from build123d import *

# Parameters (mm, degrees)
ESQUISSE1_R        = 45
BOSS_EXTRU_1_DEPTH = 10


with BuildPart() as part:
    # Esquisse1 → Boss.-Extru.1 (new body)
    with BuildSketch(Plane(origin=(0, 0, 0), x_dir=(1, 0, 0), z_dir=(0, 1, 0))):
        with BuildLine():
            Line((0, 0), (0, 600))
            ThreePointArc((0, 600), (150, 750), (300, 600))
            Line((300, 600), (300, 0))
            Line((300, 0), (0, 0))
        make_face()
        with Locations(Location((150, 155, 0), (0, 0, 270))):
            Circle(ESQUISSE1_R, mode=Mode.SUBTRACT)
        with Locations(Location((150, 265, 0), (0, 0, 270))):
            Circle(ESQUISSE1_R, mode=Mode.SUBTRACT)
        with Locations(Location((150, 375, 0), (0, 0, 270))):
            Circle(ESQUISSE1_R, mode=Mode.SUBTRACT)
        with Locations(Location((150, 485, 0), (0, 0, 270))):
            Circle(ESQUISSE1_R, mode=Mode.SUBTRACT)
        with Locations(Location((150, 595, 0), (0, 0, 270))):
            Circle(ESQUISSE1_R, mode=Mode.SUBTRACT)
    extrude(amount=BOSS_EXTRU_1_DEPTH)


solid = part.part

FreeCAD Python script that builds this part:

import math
import FreeCAD as App
import Part
import Sketcher
from FreeCAD import Vector

doc = App.newDocument("Part")
body = doc.addObject("PartDesign::Body", "Body")

# Sketch on XZ plane
sketch1 = doc.addObject("Sketcher::SketchObject", "Sketch")
body.addObject(sketch1)
sketch1.AttachmentSupport = (doc.XZ_Plane, [""])
sketch1.MapMode = "FlatFace"
sketch1.addGeometry([
    Part.LineSegment(Vector(0, -600, 0), Vector(0, 0, 0)),  # 0
    Part.LineSegment(Vector(0, 0, 0), Vector(300, 0, 0)),  # 1
    Part.LineSegment(Vector(300, 0, 0), Vector(300, -600, 0)),  # 2
    Part.ArcOfCircle(Part.Circle(Vector(150, -600, 0), Vector(0, 0, 1), 150), math.radians(180), math.radians(360)),  # 3
    Part.Circle(Vector(150, -155, 0), Vector(0, 0, 1), 45),  # 4
    Part.Circle(Vector(150, -265, 0), Vector(0, 0, 1), 45),  # 5
    Part.Circle(Vector(150, -375, 0), Vector(0, 0, 1), 45),  # 6
    Part.Circle(Vector(150, -485, 0), Vector(0, 0, 1), 45),  # 7
    Part.Circle(Vector(150, -595, 0), Vector(0, 0, 1), 45),  # 8
], False)
sketch1.addConstraint([
    Sketcher.Constraint("Coincident", 0, 2, 1, 1),
    Sketcher.Constraint("Coincident", 1, 2, 2, 1),
    Sketcher.Constraint("Tangent", 2, 2, 3, 2),
    Sketcher.Constraint("Tangent", 3, 1, 0, 1),
    Sketcher.Constraint("Vertical", 0),
    Sketcher.Constraint("Horizontal", 1),
    Sketcher.Constraint("Vertical", 2),
    Sketcher.Constraint("Coincident", 0, 2, -1, 1),
    Sketcher.Constraint("Equal", 4, 5),
    Sketcher.Constraint("Equal", 5, 6),
    Sketcher.Constraint("Equal", 6, 7),
    Sketcher.Constraint("Equal", 7, 8),
    Sketcher.Constraint("Vertical", 3, 3, 4, 3),
    Sketcher.Constraint("Vertical", 4, 3, 5, 3),
    Sketcher.Constraint("Vertical", 5, 3, 6, 3),
    Sketcher.Constraint("Vertical", 6, 3, 7, 3),
    Sketcher.Constraint("Vertical", 7, 3, 8, 3),
    Sketcher.Constraint("Diameter", 4, 90.0),
    Sketcher.Constraint("Radius", 3, 150.0),
    Sketcher.Constraint("DistanceY", 0, 1, 0, 2, 600.0),
    Sketcher.Constraint("DistanceY", 4, 3, -1, 1, 155.0),
    Sketcher.Constraint("DistanceY", 5, 3, -1, 1, 265.0),
    Sketcher.Constraint("DistanceY", 6, 3, -1, 1, 375.0),
    Sketcher.Constraint("DistanceY", 7, 3, -1, 1, 485.0),
    Sketcher.Constraint("DistanceY", 8, 3, -1, 1, 595.0),
])
pad1 = doc.addObject("PartDesign::Pad", "Pad")
body.addObject(pad1)
pad1.Profile = sketch1
pad1.Length = 10
pad1.Reversed = True

doc.recompute()
